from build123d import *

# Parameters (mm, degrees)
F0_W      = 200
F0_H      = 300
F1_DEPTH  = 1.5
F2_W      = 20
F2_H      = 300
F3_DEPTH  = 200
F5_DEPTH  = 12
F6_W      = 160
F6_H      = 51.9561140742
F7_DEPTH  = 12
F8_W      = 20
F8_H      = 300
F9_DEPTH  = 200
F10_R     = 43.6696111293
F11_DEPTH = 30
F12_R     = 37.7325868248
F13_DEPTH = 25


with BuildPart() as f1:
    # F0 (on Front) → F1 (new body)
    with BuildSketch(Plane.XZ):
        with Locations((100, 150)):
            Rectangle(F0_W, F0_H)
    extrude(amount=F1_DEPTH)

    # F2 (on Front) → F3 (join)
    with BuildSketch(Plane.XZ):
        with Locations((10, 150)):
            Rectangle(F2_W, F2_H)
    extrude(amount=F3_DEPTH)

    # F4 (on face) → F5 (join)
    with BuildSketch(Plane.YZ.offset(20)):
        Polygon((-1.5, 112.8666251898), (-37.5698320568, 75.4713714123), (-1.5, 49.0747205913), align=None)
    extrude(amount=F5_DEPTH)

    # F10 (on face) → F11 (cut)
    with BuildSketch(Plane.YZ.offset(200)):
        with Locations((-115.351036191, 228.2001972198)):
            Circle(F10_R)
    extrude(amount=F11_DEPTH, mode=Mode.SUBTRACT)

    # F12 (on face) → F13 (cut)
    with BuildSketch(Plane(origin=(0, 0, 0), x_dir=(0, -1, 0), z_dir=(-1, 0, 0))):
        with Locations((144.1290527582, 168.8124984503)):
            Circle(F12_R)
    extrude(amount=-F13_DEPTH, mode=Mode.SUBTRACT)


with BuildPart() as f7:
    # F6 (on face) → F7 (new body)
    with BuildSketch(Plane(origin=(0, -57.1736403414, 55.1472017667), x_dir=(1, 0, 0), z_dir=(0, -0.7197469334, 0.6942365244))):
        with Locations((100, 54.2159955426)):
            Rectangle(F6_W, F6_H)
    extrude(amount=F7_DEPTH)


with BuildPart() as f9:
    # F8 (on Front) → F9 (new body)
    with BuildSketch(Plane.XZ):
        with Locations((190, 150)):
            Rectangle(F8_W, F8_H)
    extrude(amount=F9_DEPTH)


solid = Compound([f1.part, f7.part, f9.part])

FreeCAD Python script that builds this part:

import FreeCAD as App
import Part
import Sketcher

V = App.Vector

doc = App.newDocument("Part")
body = doc.addObject("PartDesign::Body", "Body")

# Sketch on XZ plane
sketch1 = body.newObject("Sketcher::SketchObject", "Sketch")
sketch1.AttachmentSupport = (doc.getObject("XZ_Plane"), [""])
sketch1.MapMode = "FlatFace"
sketch1.addGeometry([
    Part.LineSegment(V(0, 300, 0), V(0, 0, 0)),
    Part.LineSegment(V(0, 0, 0), V(200, 0, 0)),
    Part.LineSegment(V(200, 0, 0), V(200, 300, 0)),
    Part.LineSegment(V(200, 300, 0), V(0, 300, 0)),
], False)
sketch1.addConstraint([
    Sketcher.Constraint("Coincident", 0, 2, 1, 1),
    Sketcher.Constraint("Coincident", 1, 2, 2, 1),
    Sketcher.Constraint("Coincident", 2, 2, 3, 1),
    Sketcher.Constraint("Coincident", 3, 2, 0, 1),
    Sketcher.Constraint("Vertical", 0),
    Sketcher.Constraint("Horizontal", 1),
    Sketcher.Constraint("Vertical", 2),
    Sketcher.Constraint("Horizontal", 3),
    Sketcher.Constraint("Coincident", 0, 2, -1, 1),
    Sketcher.Constraint("DistanceX", 1, 1, 1, 2, 200.0),
    Sketcher.Constraint("DistanceY", 0, 2, 0, 1, 300.0),
])
pad1 = body.newObject("PartDesign::Pad", "Pad")
pad1.Profile = sketch1
pad1.Length = 1.5

# Sketch on XZ plane
sketch2 = body.newObject("Sketcher::SketchObject", "Sketch001")
sketch2.AttachmentSupport = (doc.getObject("XZ_Plane"), [""])
sketch2.MapMode = "FlatFace"
sketch2.addGeometry([
    Part.LineSegment(V(0, 300, 0), V(0, 0, 0)),
    Part.LineSegment(V(0, 0, 0), V(20, 0, 0)),
    Part.LineSegment(V(20, 0, 0), V(20, 300, 0)),
    Part.LineSegment(V(20, 300, 0), V(0, 300, 0)),
], False)
sketch2.addConstraint([
    Sketcher.Constraint("Coincident", 0, 2, 1, 1),
    Sketcher.Constraint("Coincident", 1, 2, 2, 1),
    Sketcher.Constraint("Coincident", 2, 2, 3, 1),
    Sketcher.Constraint("Coincident", 3, 2, 0, 1),
    Sketcher.Constraint("Vertical", 0),
    Sketcher.Constraint("Horizontal", 1),
    Sketcher.Constraint("Vertical", 2),
    Sketcher.Constraint("Horizontal", 3),
    Sketcher.Constraint("Coincident", 0, 2, -1, 1),
    Sketcher.Constraint("DistanceX", 1, 1, 1, 2, 20.0),
    Sketcher.Constraint("DistanceY", 0, 2, 0, 1, 300.0),
])
pad2 = body.newObject("PartDesign::Pad", "Pad001")
pad2.Profile = sketch2
pad2.Length = 200

# Sketch on YZ plane
sketch3 = body.newObject("Sketcher::SketchObject", "Sketch002")
sketch3.AttachmentSupport = (doc.getObject("YZ_Plane"), [""])
sketch3.MapMode = "FlatFace"
sketch3.AttachmentOffset = App.Placement(V(0, 0, 20), App.Rotation())
sketch3.addGeometry([
    Part.LineSegment(V(-2, 113, 0), V(-38, 75, 0)),
    Part.LineSegment(V(-38, 75, 0), V(-2, 49, 0)),
    Part.LineSegment(V(-2, 49, 0), V(-2, 113, 0)),
], False)
sketch3.addConstraint([
    Sketcher.Constraint("Coincident", 0, 2, 1, 1),
    Sketcher.Constraint("Coincident", 1, 2, 2, 1),
    Sketcher.Constraint("Coincident", 2, 2, 0, 1),
    Sketcher.Constraint("Vertical", 2),
    Sketcher.Constraint("DistanceX", 1, 2, -1, 1, 1.5),
    Sketcher.Constraint("DistanceY", 2, 1, 2, 2, 63.791905),
    Sketcher.Constraint("DistanceY", -1, 1, 0, 2, 75.471371),
    Sketcher.Constraint("DistanceY", -1, 1, 1, 2, 49.074721),
    Sketcher.Constraint("Distance", 0, 51.956114),
])
pad3 = body.newObject("PartDesign::Pad", "Pad002")
pad3.Profile = sketch3
pad3.Length = 12

# Sketch on YZ plane
sketch4 = body.newObject("Sketcher::SketchObject", "Sketch003")
sketch4.AttachmentSupport = (doc.getObject("YZ_Plane"), [""])
sketch4.MapMode = "FlatFace"
sketch4.AttachmentOffset = App.Placement(V(0, 0, 200), App.Rotation())
sketch4.addGeometry(Part.Circle(V(-115, 228, 0), V(0, 0, 1), 44), False)
sketch4.addConstraint([
    Sketcher.Constraint("Diameter", 0, 87.339222),
    Sketcher.Constraint("DistanceX", 0, 3, -1, 1, 115.351036),
    Sketcher.Constraint("DistanceY", -1, 1, 0, 3, 228.200197),
])
pocket1 = body.newObject("PartDesign::Pocket", "Pocket")
pocket1.Profile = sketch4
pocket1.Length = 30
pocket1.Reversed = True

# Sketch on YZ plane
sketch5 = body.newObject("Sketcher::SketchObject", "Sketch004")
sketch5.AttachmentSupport = (doc.getObject("YZ_Plane"), [""])
sketch5.MapMode = "FlatFace"
sketch5.addGeometry(Part.Circle(V(-144, 169, 0), V(0, 0, 1), 38), False)
sketch5.addConstraint([
    Sketcher.Constraint("Diameter", 0, 75.465174),
    Sketcher.Constraint("DistanceY", -1, 1, 0, 3, 168.812498),
    Sketcher.Constraint("DistanceX", 0, 3, -1, 1, 144.129053),
])
pocket2 = body.newObject("PartDesign::Pocket", "Pocket001")
pocket2.Profile = sketch5
pocket2.Length = 25
pocket2.Reversed = True
body2 = doc.addObject("PartDesign::Body", "Body001")

# Sketch on an angled plane
sketch6 = body2.newObject("Sketcher::SketchObject", "Sketch005")
sketch6.Placement = App.Placement(V(0, -57.17364, 55.147202), App.Rotation(V(1, 0, 0), V(0, 0.694236524, 0.719746933), V(0, -0.719746933, 0.694236524), "ZXY"))
sketch6.addGeometry([
    Part.LineSegment(V(20, 80, 0), V(20, 28, 0)),
    Part.LineSegment(V(20, 28, 0), V(180, 28, 0)),
    Part.LineSegment(V(180, 28, 0), V(180, 80, 0)),
    Part.LineSegment(V(180, 80, 0), V(20, 80, 0)),
], False)
sketch6.addConstraint([
    Sketcher.Constraint("Coincident", 0, 2, 1, 1),
    Sketcher.Constraint("Coincident", 1, 2, 2, 1),
    Sketcher.Constraint("Coincident", 2, 2, 3, 1),
    Sketcher.Constraint("Coincident", 3, 2, 0, 1),
    Sketcher.Constraint("Vertical", 0),
    Sketcher.Constraint("Horizontal", 1),
    Sketcher.Constraint("Vertical", 2),
    Sketcher.Constraint("Horizontal", 3),
    Sketcher.Constraint("DistanceX", 1, 1, 1, 2, 160.0),
    Sketcher.Constraint("DistanceX", -1, 1, 0, 2, 20.0),
    Sketcher.Constraint("DistanceY", 0, 2, 0, 1, 51.956114),
    Sketcher.Constraint("DistanceY", -1, 1, 0, 2, 28.237938),
])
pad4 = body2.newObject("PartDesign::Pad", "Pad003")
pad4.Profile = sketch6
pad4.Length = 12
body3 = doc.addObject("PartDesign::Body", "Body002")

# Sketch on XZ plane
sketch7 = body3.newObject("Sketcher::SketchObject", "Sketch006")
sketch7.AttachmentSupport = (doc.getObject("XZ_Plane002"), [""])
sketch7.MapMode = "FlatFace"
sketch7.addGeometry([
    Part.LineSegment(V(180, 300, 0), V(180, 0, 0)),
    Part.LineSegment(V(180, 0, 0), V(200, 0, 0)),
    Part.LineSegment(V(200, 0, 0), V(200, 300, 0)),
    Part.LineSegment(V(200, 300, 0), V(180, 300, 0)),
], False)
sketch7.addConstraint([
    Sketcher.Constraint("Coincident", 0, 2, 1, 1),
    Sketcher.Constraint("Coincident", 1, 2, 2, 1),
    Sketcher.Constraint("Coincident", 2, 2, 3, 1),
    Sketcher.Constraint("Coincident", 3, 2, 0, 1),
    Sketcher.Constraint("Vertical", 0),
    Sketcher.Constraint("Horizontal", 1),
    Sketcher.Constraint("Vertical", 2),
    Sketcher.Constraint("Horizontal", 3),
    Sketcher.Constraint("PointOnObject", 0, 2, -1),
    Sketcher.Constraint("DistanceX", 1, 1, 1, 2, 20.0),
    Sketcher.Constraint("DistanceY", 0, 2, 0, 1, 300.0),
    Sketcher.Constraint("DistanceX", -1, 1, 0, 2, 180.0),
])
pad5 = body3.newObject("PartDesign::Pad", "Pad004")
pad5.Profile = sketch7
pad5.Length = 200

doc.recompute()
